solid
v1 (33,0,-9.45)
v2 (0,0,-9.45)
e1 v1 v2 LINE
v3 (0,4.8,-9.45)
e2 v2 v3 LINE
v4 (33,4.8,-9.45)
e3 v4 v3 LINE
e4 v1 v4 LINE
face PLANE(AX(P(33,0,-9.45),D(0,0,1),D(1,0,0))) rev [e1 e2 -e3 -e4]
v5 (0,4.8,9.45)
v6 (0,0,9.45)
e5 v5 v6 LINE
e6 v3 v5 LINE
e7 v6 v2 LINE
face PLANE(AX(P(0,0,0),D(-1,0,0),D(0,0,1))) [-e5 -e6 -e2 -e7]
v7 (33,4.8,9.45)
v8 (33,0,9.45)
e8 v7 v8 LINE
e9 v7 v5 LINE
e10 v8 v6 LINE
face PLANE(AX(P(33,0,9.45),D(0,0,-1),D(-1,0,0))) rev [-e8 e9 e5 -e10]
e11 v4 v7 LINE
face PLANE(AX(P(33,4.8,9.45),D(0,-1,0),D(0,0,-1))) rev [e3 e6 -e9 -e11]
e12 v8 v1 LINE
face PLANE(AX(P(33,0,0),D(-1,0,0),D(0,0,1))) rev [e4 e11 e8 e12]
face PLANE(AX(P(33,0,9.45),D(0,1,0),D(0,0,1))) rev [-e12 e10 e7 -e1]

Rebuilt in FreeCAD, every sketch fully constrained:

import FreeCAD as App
import Part
import Sketcher


def add_polygon(sketch, points):
    """Adds a closed chain of lines whose ends are joined by coincident constraints."""
    first, n = sketch.GeometryCount, len(points)
    for a, b in zip(points, points[1:] + points[:1]):
        sketch.addGeometry(Part.LineSegment(App.Vector(*a, 0), App.Vector(*b, 0)), False)
    for i in range(n):
        sketch.addConstraint(Sketcher.Constraint("Coincident", first + i, 2, first + (i + 1) % n, 1))

doc = App.newDocument("Part")
params = doc.addObject("Spreadsheet::Sheet", "Params")
for row, (alias, value) in enumerate([
    ("sketch1_width", "4.8 mm"),
    ("sketch1_height", "18.9 mm"),
    ("pad1_length", "33 mm"),
], start=1):
    params.set(f"A{row}", alias)
    params.set(f"B{row}", "=" + value)
    params.setAlias(f"B{row}", alias)

body = doc.addObject("PartDesign::Body", "Body")

# Sketch on YZ plane
sketch1 = body.newObject("Sketcher::SketchObject", "Sketch")
sketch1.AttachmentSupport = (doc.getObject("YZ_Plane"), [""])
sketch1.MapMode = "FlatFace"
add_polygon(sketch1, [(4.8, 9.4), (0, 9.4), (0, -9.4), (4.8, -9.4)])  # lines 0-3
sketch1.addConstraint([
    Sketcher.Constraint("Horizontal", 0),
    Sketcher.Constraint("Vertical", 1),
    Sketcher.Constraint("Horizontal", 2),
    Sketcher.Constraint("Vertical", 3),
    Sketcher.Constraint("Symmetric", 0, 2, 1, 2, -1, 1),
    Sketcher.Constraint("DistanceX", 0, 2, 0, 1, 4.8),
    Sketcher.Constraint("DistanceY", 1, 2, 1, 1, 18.9),
])
sketch1.setExpression("Constraints[9]", "Params.sketch1_width")
sketch1.setExpression("Constraints[10]", "Params.sketch1_height")
pad1 = body.newObject("PartDesign::Pad", "Pad")
pad1.Profile = sketch1
pad1.setExpression("Length", "Params.pad1_length")

doc.recompute()
